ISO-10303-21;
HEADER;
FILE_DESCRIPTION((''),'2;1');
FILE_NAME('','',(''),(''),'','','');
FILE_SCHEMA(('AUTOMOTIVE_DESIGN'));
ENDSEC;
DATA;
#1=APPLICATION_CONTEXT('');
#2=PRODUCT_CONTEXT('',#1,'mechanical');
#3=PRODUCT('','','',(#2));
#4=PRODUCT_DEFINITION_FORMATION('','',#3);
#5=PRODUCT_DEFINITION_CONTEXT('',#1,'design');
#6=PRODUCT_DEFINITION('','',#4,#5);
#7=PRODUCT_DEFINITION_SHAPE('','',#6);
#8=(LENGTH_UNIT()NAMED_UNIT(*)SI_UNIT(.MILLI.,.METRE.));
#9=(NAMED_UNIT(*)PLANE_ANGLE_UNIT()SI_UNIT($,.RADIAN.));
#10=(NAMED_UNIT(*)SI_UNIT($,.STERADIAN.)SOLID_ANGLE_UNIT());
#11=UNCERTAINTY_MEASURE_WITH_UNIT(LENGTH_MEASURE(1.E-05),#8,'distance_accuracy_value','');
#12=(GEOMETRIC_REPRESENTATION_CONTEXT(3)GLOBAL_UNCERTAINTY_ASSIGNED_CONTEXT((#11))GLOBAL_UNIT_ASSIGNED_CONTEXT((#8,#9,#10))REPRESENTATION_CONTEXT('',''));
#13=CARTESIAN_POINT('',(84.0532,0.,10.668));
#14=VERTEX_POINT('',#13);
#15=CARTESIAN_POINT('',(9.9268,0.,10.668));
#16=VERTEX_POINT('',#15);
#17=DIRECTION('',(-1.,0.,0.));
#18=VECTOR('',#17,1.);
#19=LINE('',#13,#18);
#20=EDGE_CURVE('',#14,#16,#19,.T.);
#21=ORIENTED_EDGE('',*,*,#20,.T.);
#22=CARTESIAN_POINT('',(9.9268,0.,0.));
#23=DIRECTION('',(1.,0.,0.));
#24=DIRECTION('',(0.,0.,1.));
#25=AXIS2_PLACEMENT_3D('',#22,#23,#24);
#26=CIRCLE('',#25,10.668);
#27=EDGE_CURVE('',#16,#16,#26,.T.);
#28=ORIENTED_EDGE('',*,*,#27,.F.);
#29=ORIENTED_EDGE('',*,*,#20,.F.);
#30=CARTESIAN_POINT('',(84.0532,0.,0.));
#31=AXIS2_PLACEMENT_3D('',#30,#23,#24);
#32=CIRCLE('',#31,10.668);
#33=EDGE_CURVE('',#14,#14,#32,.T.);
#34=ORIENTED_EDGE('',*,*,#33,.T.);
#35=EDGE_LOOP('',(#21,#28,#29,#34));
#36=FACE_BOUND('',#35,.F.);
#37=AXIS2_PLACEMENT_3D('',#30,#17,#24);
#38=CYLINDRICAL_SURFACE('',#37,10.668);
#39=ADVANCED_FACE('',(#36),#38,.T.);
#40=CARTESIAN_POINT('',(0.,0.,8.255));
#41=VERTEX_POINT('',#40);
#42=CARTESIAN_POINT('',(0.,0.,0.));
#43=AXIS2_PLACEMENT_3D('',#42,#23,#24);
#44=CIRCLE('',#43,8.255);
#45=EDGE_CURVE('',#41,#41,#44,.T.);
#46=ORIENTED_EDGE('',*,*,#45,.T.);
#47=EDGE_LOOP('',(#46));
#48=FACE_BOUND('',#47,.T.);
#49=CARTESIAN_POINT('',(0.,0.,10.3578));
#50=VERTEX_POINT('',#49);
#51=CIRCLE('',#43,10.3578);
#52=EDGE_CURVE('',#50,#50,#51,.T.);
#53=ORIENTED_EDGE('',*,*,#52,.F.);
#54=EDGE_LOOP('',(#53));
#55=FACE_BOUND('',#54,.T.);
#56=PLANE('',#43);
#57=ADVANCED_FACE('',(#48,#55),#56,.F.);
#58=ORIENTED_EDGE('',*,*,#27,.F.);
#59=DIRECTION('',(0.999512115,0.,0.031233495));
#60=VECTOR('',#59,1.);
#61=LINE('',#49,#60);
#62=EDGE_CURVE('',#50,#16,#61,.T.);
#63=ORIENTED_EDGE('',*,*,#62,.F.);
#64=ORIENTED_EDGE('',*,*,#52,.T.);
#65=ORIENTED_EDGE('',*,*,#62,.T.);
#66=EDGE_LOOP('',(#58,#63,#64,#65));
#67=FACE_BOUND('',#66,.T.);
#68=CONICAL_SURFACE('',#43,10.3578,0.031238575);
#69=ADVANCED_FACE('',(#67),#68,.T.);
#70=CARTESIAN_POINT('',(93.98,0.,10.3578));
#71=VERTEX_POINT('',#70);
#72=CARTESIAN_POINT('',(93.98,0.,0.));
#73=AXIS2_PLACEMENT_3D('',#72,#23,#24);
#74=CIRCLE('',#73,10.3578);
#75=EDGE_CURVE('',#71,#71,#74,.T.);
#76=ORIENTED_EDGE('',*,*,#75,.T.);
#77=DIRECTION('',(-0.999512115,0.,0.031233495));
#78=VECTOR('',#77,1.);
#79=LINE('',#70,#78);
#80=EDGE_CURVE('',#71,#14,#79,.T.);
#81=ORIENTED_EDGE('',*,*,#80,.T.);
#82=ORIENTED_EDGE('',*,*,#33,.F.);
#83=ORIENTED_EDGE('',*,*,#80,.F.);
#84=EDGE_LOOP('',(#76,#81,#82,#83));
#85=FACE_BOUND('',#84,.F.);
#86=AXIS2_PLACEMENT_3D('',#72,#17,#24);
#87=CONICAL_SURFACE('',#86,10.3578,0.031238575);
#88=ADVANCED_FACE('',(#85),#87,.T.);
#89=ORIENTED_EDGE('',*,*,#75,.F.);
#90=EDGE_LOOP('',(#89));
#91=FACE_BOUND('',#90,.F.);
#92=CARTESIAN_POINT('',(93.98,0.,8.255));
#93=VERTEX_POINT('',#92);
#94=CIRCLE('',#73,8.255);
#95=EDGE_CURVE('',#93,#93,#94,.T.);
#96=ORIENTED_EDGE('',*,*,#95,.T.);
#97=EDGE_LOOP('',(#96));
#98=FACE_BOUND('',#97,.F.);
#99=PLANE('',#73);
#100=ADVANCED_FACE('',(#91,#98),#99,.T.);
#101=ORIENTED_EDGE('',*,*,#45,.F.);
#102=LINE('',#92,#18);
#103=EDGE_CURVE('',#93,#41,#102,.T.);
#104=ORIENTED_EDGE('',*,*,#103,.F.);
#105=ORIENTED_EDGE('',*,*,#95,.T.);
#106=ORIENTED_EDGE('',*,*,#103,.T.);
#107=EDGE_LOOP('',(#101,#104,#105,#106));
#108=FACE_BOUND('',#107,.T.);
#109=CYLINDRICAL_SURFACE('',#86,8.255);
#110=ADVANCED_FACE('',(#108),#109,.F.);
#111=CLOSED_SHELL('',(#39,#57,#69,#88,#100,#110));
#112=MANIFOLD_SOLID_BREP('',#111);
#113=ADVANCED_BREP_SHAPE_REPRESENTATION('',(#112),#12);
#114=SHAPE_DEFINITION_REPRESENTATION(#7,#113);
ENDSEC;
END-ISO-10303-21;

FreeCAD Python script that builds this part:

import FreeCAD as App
import Part
import Sketcher
from FreeCAD import Vector
Q = App.Units.Quantity

doc = App.newDocument("Part")
body = doc.addObject("PartDesign::Body", "Body")

# Sketch on XZ plane
sketch1 = body.newObject("Sketcher::SketchObject", "Sketch")
sketch1.AttachmentSupport = (doc.getObject("XZ_Plane"), [""])
sketch1.MapMode = "FlatFace"
sketch1.addGeometry([
    Part.LineSegment(Vector(94, 10.4, 0), Vector(94, 8.3, 0)),  # 0
    Part.LineSegment(Vector(94, 8.3, 0), Vector(0, 8.3, 0)),  # 1
    Part.LineSegment(Vector(0, 8.3, 0), Vector(0, 10.4, 0)),  # 2
    Part.LineSegment(Vector(0, 10.4, 0), Vector(9.9, 10.7, 0)),  # 3
    Part.LineSegment(Vector(9.9, 10.7, 0), Vector(84.1, 10.7, 0)),  # 4
    Part.LineSegment(Vector(84.1, 10.7, 0), Vector(94, 10.4, 0)),  # 5
], False)
sketch1.addConstraint([
    Sketcher.Constraint("Coincident", 0, 2, 1, 1),
    Sketcher.Constraint("Coincident", 1, 2, 2, 1),
    Sketcher.Constraint("Coincident", 2, 2, 3, 1),
    Sketcher.Constraint("Coincident", 3, 2, 4, 1),
    Sketcher.Constraint("Coincident", 4, 2, 5, 1),
    Sketcher.Constraint("Coincident", 5, 2, 0, 1),
    Sketcher.Constraint("Vertical", 0),
    Sketcher.Constraint("Horizontal", 1),
    Sketcher.Constraint("Vertical", 2),
    Sketcher.Constraint("Horizontal", 4),
    Sketcher.Constraint("PointOnObject", 1, 2, -2),
    Sketcher.Constraint("Horizontal", 2, 2, 5, 2),
    Sketcher.Constraint("Equal", 3, 5),
    Sketcher.Constraint("DistanceX", 1, 2, 1, 1, Q("3.7 in")),
    Sketcher.Constraint("Angle", 3, Q("1.7898 deg")),
    Sketcher.Constraint("DistanceY", -1, 1, 3, 2, Q("0.42 in")),
    Sketcher.Constraint("Distance", 3, Q("0.391 in")),
    Sketcher.Constraint("DistanceY", -1, 1, 0, 2, Q("0.325 in")),
])
revolution = body.newObject("PartDesign::Revolution", "Revolution")
revolution.Profile = sketch1
revolution.ReferenceAxis = (sketch1, ["H_Axis"])
revolution.Angle = 360

doc.recompute()
